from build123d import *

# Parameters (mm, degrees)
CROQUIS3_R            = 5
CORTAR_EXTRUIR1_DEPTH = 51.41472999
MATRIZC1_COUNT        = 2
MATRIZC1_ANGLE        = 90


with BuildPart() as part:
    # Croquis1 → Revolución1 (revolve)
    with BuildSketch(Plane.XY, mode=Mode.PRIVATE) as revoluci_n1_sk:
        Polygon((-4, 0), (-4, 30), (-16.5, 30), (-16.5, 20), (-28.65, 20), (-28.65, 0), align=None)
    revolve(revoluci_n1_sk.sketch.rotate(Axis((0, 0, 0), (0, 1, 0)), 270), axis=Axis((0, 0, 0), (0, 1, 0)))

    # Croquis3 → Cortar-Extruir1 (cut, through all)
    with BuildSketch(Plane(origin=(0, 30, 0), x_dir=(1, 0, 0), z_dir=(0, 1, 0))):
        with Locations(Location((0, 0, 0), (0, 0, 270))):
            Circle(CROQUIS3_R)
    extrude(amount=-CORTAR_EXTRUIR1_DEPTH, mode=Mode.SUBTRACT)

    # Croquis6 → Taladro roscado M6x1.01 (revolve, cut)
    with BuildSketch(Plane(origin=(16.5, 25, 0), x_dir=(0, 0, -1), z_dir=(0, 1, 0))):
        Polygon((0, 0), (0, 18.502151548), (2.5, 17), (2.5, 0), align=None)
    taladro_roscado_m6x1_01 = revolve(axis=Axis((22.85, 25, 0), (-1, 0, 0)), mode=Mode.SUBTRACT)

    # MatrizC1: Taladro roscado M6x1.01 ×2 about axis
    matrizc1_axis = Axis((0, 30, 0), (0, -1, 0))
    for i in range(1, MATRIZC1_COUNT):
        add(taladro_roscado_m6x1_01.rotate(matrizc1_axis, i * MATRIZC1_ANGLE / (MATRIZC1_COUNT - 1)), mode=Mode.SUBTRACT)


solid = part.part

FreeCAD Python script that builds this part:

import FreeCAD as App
import Part
import Sketcher
from FreeCAD import Vector
Q = App.Units.Quantity


def add_polygon(sketch, points):
    """Adds a closed chain of lines whose ends are joined by coincident constraints."""
    first, n = sketch.GeometryCount, len(points)
    for a, b in zip(points, points[1:] + points[:1]):
        sketch.addGeometry(Part.LineSegment(App.Vector(*a, 0), App.Vector(*b, 0)), False)
    for i in range(n):
        sketch.addConstraint(Sketcher.Constraint("Coincident", first + i, 2, first + (i + 1) % n, 1))

doc = App.newDocument("Part")
body = doc.addObject("PartDesign::Body", "Body")

# Sketch on XY plane
sketch1 = body.newObject("Sketcher::SketchObject", "Sketch")
sketch1.AttachmentSupport = (doc.getObject("XY_Plane"), [""])
sketch1.MapMode = "FlatFace"
add_polygon(sketch1, [(-4, 0), (-4, 30), (-16.5, 30), (-16.5, 20), (-28.65, 20), (-28.65, 0)])  # lines 0-5
sketch1.addConstraint(Sketcher.Constraint("Vertical", 0))
sketch1.addConstraint(Sketcher.Constraint("Horizontal", 1))
sketch1.addConstraint(Sketcher.Constraint("Vertical", 2))
sketch1.addConstraint(Sketcher.Constraint("Horizontal", 3))
sketch1.addConstraint(Sketcher.Constraint("Vertical", 4))
sketch1.addConstraint(Sketcher.Constraint("Horizontal", 5))
sketch1.addConstraint(Sketcher.Constraint("PointOnObject", 4, 2, -1))
sketch1.addConstraint(Sketcher.Constraint("DistanceY", 0, 1, 0, 2, 30.0))
sketch1.addConstraint(Sketcher.Constraint("DistanceY", 2, 2, 2, 1, 10.0))
sketch1.addConstraint(Sketcher.Constraint("DistanceX", 1, 2, 1, 1, 12.5))
sketch1.addConstraint(Sketcher.Constraint("DistanceX", 0, 2, -1, 1, 4.0))
sketch1.addConstraint(Sketcher.Constraint("DistanceX", 3, 2, 3, 1, 12.15))
revolution = body.newObject("PartDesign::Revolution", "Revolution")
revolution.Profile = sketch1
revolution.ReferenceAxis = (sketch1, ["V_Axis"])
revolution.Angle = 360

# Sketch on XZ plane
sketch2 = body.newObject("Sketcher::SketchObject", "Sketch001")
sketch2.AttachmentSupport = (doc.getObject("XZ_Plane"), [""])
sketch2.MapMode = "FlatFace"
sketch2.AttachmentOffset = App.Placement(Vector(0, 0, -30), App.Rotation())
sketch2.addGeometry(Part.Circle(Vector(0, 0, 0), Vector(0, 0, 1), 5), False)
sketch2.addConstraint(Sketcher.Constraint("Coincident", 0, 3, -1, 1))
sketch2.addConstraint(Sketcher.Constraint("Diameter", 0, 10.0))
pocket1 = body.newObject("PartDesign::Pocket", "Pocket")
pocket1.Profile = sketch2
pocket1.Type = "ThroughAll"
pocket1.Reversed = True

# Sketch on XZ plane
sketch3 = body.newObject("Sketcher::SketchObject", "Sketch002")
sketch3.AttachmentSupport = (doc.getObject("XZ_Plane"), [""])
sketch3.MapMode = "FlatFace"
sketch3.AttachmentOffset = App.Placement(Vector(0, 0, -25), App.Rotation())
add_polygon(sketch3, [(-2.002152, 0), (16.5, 0), (16.5, -2.5), (-0.5, -2.5)])  # lines 0-3
sketch3.addConstraint(Sketcher.Constraint("Horizontal", 0))
sketch3.addConstraint(Sketcher.Constraint("Vertical", 1))
sketch3.addConstraint(Sketcher.Constraint("Horizontal", 2))
sketch3.addConstraint(Sketcher.Constraint("PointOnObject", 0, 2, -1))
sketch3.addConstraint(Sketcher.Constraint("DistanceX", 2, 2, 2, 1, 17.0))
sketch3.addConstraint(Sketcher.Constraint("Angle", 3, Q("121 deg")))
sketch3.addConstraint(Sketcher.Constraint("DistanceY", 1, 2, 1, 1, 2.5))
sketch3.addConstraint(Sketcher.Constraint("DistanceX", -1, 1, 0, 2, 16.5))
groove = body.newObject("PartDesign::Groove", "Groove")
groove.Profile = sketch3
groove.ReferenceAxis = (sketch3, ["H_Axis"])
groove.Angle = 360
doc.recompute()

polarpattern = body.newObject("PartDesign::PolarPattern", "PolarPattern")
polarpattern.Originals = [groove]
polarpattern.Axis = (doc.getObject("Y_Axis"), [""])
polarpattern.Angle = 90
polarpattern.Occurrences = 2
polarpattern.Reversed = True
body.Tip = polarpattern

doc.recompute()
